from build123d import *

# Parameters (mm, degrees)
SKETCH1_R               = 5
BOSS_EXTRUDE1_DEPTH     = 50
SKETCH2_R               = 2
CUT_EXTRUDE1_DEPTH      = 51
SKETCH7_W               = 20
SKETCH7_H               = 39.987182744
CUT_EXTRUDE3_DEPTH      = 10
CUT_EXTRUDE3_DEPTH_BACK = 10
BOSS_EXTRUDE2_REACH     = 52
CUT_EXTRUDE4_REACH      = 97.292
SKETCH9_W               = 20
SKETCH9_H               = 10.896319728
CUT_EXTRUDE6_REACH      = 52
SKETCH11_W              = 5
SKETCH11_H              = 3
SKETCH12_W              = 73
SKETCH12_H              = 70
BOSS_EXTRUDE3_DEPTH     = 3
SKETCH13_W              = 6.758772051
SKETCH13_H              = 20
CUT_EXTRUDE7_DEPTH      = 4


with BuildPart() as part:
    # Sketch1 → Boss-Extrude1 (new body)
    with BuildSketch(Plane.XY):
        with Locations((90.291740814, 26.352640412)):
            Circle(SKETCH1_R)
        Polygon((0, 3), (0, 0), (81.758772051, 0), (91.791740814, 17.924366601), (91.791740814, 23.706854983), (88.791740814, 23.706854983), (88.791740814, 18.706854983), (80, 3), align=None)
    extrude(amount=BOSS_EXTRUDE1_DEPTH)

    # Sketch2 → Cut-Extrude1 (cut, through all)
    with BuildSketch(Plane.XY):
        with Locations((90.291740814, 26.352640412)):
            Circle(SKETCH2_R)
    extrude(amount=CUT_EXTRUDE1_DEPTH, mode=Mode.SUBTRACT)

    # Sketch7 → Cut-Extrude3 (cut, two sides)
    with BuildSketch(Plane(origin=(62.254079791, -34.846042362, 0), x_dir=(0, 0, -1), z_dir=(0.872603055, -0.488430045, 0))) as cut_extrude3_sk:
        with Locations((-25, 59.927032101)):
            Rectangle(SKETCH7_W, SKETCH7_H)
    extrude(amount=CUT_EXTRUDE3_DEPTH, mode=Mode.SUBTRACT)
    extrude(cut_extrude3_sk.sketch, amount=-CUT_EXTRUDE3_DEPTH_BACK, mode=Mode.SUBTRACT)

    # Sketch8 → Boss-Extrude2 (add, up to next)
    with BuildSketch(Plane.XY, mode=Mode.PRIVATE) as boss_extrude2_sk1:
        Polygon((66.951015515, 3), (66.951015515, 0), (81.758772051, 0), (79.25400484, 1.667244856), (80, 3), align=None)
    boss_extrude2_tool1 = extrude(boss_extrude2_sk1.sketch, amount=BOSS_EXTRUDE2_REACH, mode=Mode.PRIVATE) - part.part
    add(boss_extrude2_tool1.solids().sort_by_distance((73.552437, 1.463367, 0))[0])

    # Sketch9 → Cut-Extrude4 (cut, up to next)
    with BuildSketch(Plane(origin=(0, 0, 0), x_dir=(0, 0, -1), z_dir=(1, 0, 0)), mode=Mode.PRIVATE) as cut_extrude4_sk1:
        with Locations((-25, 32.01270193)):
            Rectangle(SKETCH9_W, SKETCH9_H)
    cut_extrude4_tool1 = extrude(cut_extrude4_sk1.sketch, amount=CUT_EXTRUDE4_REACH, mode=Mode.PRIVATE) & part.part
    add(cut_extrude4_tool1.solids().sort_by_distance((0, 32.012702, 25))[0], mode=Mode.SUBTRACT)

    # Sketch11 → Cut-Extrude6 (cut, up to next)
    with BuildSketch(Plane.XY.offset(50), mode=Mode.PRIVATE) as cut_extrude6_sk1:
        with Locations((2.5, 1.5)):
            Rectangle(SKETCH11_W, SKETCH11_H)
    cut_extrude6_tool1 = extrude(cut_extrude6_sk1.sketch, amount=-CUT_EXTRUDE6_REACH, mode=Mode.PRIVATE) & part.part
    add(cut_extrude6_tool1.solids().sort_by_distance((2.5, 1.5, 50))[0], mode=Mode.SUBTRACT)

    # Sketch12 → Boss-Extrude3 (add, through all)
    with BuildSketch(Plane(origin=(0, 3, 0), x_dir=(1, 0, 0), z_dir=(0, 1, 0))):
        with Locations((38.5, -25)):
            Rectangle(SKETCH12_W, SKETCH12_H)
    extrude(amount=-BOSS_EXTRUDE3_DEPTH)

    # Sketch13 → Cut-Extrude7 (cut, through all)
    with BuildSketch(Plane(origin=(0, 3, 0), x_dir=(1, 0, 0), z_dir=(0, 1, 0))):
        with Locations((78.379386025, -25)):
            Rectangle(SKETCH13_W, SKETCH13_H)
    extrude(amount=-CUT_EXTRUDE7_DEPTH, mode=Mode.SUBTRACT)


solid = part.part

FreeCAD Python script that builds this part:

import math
import FreeCAD as App
import Part
import Sketcher
from FreeCAD import Vector


def add_polygon(sketch, points):
    """Adds a closed chain of lines whose ends are joined by coincident constraints."""
    first, n = sketch.GeometryCount, len(points)
    for a, b in zip(points, points[1:] + points[:1]):
        sketch.addGeometry(Part.LineSegment(App.Vector(*a, 0), App.Vector(*b, 0)), False)
    for i in range(n):
        sketch.addConstraint(Sketcher.Constraint("Coincident", first + i, 2, first + (i + 1) % n, 1))

doc = App.newDocument("Part")
body = doc.addObject("PartDesign::Body", "Body")

# Sketch on XY plane
sketch1 = doc.addObject("Sketcher::SketchObject", "Sketch")
body.addObject(sketch1)
sketch1.AttachmentSupport = (doc.XY_Plane, [""])
sketch1.MapMode = "FlatFace"
sketch1.addGeometry([
    Part.ArcOfCircle(Part.Circle(Vector(90.3, 26.4, 0), Vector(0, 0, 1), 5), math.radians(-73), math.radians(253)),  # 0
    Part.LineSegment(Vector(88.8, 21.6, 0), Vector(88.8, 18.7, 0)),  # 1
    Part.LineSegment(Vector(88.8, 18.7, 0), Vector(80, 3, 0)),  # 2
    Part.LineSegment(Vector(80, 3, 0), Vector(0, 3, 0)),  # 3
    Part.LineSegment(Vector(0, 3, 0), Vector(0, 0, 0)),  # 4
    Part.LineSegment(Vector(0, 0, 0), Vector(81.8, 0, 0)),  # 5
    Part.LineSegment(Vector(81.8, 0, 0), Vector(91.8, 17.9, 0)),  # 6
    Part.LineSegment(Vector(91.8, 17.9, 0), Vector(91.8, 21.6, 0)),  # 7
], False)
sketch1.addConstraint([
    Sketcher.Constraint("Coincident", 0, 2, 1, 1),
    Sketcher.Constraint("Coincident", 1, 2, 2, 1),
    Sketcher.Constraint("Coincident", 2, 2, 3, 1),
    Sketcher.Constraint("Coincident", 3, 2, 4, 1),
    Sketcher.Constraint("Coincident", 4, 2, 5, 1),
    Sketcher.Constraint("Coincident", 5, 2, 6, 1),
    Sketcher.Constraint("Coincident", 6, 2, 7, 1),
    Sketcher.Constraint("Coincident", 7, 2, 0, 1),
    Sketcher.Constraint("Vertical", 1),
    Sketcher.Constraint("Horizontal", 3),
    Sketcher.Constraint("Vertical", 4),
    Sketcher.Constraint("Horizontal", 5),
    Sketcher.Constraint("Vertical", 7),
    Sketcher.Constraint("Coincident", 4, 2, -1, 1),
    Sketcher.Constraint("Parallel", 2, 6),
    Sketcher.Constraint("Horizontal", 0, 2, 7, 2),
    Sketcher.Constraint("Radius", 0, 5.0),
    Sketcher.Constraint("DistanceX", 3, 2, 3, 1, 80.0),
    Sketcher.Constraint("DistanceY", 4, 2, 4, 1, 3.0),
    Sketcher.Constraint("Distance", 2, 18.0),
    Sketcher.Constraint("DistanceX", 1, 2, 6, 2, 3.0),
    Sketcher.Constraint("DistanceY", 1, 2, 1, 1, 2.876089),
    Sketcher.Constraint("Distance", 6, 20.54126),
    Sketcher.Constraint("DistanceX", 5, 1, 5, 2, 81.758772),
])
pad1 = doc.addObject("PartDesign::Pad", "Pad")
body.addObject(pad1)
pad1.Profile = sketch1
pad1.Length = 50

# Sketch on XY plane
sketch2 = doc.addObject("Sketcher::SketchObject", "Sketch001")
body.addObject(sketch2)
sketch2.AttachmentSupport = (doc.XY_Plane, [""])
sketch2.MapMode = "FlatFace"
sketch2.addGeometry(Part.Circle(Vector(90.3, 26.4, 0), Vector(0, 0, 1), 2), False)
sketch2.addConstraint([
    Sketcher.Constraint("Diameter", 0, 4.0),
    Sketcher.Constraint("DistanceX", -1, 1, 0, 3, 90.291741),
    Sketcher.Constraint("DistanceY", -1, 1, 0, 3, 26.35264),
])
pocket1 = doc.addObject("PartDesign::Pocket", "Pocket")
body.addObject(pocket1)
pocket1.Profile = sketch2
pocket1.Type = "ThroughAll"
pocket1.Reversed = True

# Sketch on an angled plane
sketch3 = doc.addObject("Sketcher::SketchObject", "Sketch002")
body.addObject(sketch3)
sketch3.Placement = App.Placement(Vector(62.25408, -34.846042, 0), App.Rotation(Vector(0, 0, -1), Vector(0.488430045, 0.872603055, 0), Vector(0.872603055, -0.488430045, 0), "ZXY"))
add_polygon(sketch3, [(-35, 80), (-35, 40), (-15, 40), (-15, 80)])  # lines 0-3
sketch3.addConstraint([
    Sketcher.Constraint("Vertical", 0),
    Sketcher.Constraint("Horizontal", 1),
    Sketcher.Constraint("Vertical", 2),
    Sketcher.Constraint("Horizontal", 3),
    Sketcher.Constraint("DistanceX", 1, 1, 1, 2, 20.0),
    Sketcher.Constraint("DistanceX", 0, 2, -1, 1, 35.0),
    Sketcher.Constraint("DistanceY", 0, 2, 0, 1, 39.987183),
    Sketcher.Constraint("DistanceY", -1, 1, 0, 2, 39.933441),
])
pocket2 = doc.addObject("PartDesign::Pocket", "Pocket001")
body.addObject(pocket2)
pocket2.Profile = sketch3
pocket2.Type = "TwoLengths"
pocket2.Length = 10
pocket2.Length2 = 10
pocket2.Reversed = True

# Sketch on XY plane
sketch4 = doc.addObject("Sketcher::SketchObject", "Sketch003")
body.addObject(sketch4)
sketch4.AttachmentSupport = (doc.XY_Plane, [""])
sketch4.MapMode = "FlatFace"
add_polygon(sketch4, [(67, 3), (67, 0), (81.8, 0), (79.3, 1.7), (80, 3)])  # lines 0-4
sketch4.addConstraint([
    Sketcher.Constraint("Vertical", 0),
    Sketcher.Constraint("Horizontal", 1),
    Sketcher.Constraint("Horizontal", 4),
    Sketcher.Constraint("PointOnObject", 0, 2, -1),
    Sketcher.Constraint("DistanceY", 0, 2, 0, 1, 3.0),
    Sketcher.Constraint("DistanceX", -1, 1, 3, 2, 80.0),
    Sketcher.Constraint("DistanceX", 1, 1, 1, 2, 14.807757),
    Sketcher.Constraint("DistanceX", 4, 2, 4, 1, 13.048984),
    Sketcher.Constraint("DistanceX", 0, 2, 2, 2, 12.302989),
    Sketcher.Constraint("Distance", 2, 3.008914),
])
pad2 = doc.addObject("PartDesign::Pad", "Pad001")
body.addObject(pad2)
pad2.Profile = sketch4
pad2.Type = "UpToFirst"

# Sketch on YZ plane
sketch5 = doc.addObject("Sketcher::SketchObject", "Sketch004")
body.addObject(sketch5)
sketch5.AttachmentSupport = (doc.YZ_Plane, [""])
sketch5.MapMode = "FlatFace"
add_polygon(sketch5, [(37, 35), (27, 35), (27, 15), (37, 15)])  # lines 0-3
sketch5.addConstraint([
    Sketcher.Constraint("Horizontal", 0),
    Sketcher.Constraint("Vertical", 1),
    Sketcher.Constraint("Horizontal", 2),
    Sketcher.Constraint("Vertical", 3),
    Sketcher.Constraint("DistanceY", 1, 2, 1, 1, 20.0),
    Sketcher.Constraint("DistanceY", -1, 1, 0, 2, 35.0),
    Sketcher.Constraint("DistanceX", 0, 2, 0, 1, 10.89632),
    Sketcher.Constraint("DistanceX", -1, 1, 2, 2, 37.460862),
])
pocket3 = doc.addObject("PartDesign::Pocket", "Pocket002")
body.addObject(pocket3)
pocket3.Profile = sketch5
pocket3.Length = 87.28592
pocket3.Reversed = True

# Sketch on XY plane
sketch6 = doc.addObject("Sketcher::SketchObject", "Sketch005")
body.addObject(sketch6)
sketch6.AttachmentSupport = (doc.XY_Plane, [""])
sketch6.MapMode = "FlatFace"
sketch6.AttachmentOffset = App.Placement(Vector(0, 0, 50), App.Rotation())
add_polygon(sketch6, [(0, 3), (0, 0), (5, 0), (5, 3)])  # lines 0-3
sketch6.addConstraint([
    Sketcher.Constraint("Vertical", 0),
    Sketcher.Constraint("Horizontal", 1),
    Sketcher.Constraint("Vertical", 2),
    Sketcher.Constraint("Horizontal", 3),
    Sketcher.Constraint("Coincident", 0, 2, -1, 1),
    Sketcher.Constraint("DistanceX", 1, 1, 1, 2, 5.0),
    Sketcher.Constraint("DistanceY", 0, 2, 0, 1, 3.0),
])
pocket4 = doc.addObject("PartDesign::Pocket", "Pocket003")
body.addObject(pocket4)
pocket4.Profile = sketch6
pocket4.Type = "UpToFirst"

# Sketch on XZ plane
sketch7 = doc.addObject("Sketcher::SketchObject", "Sketch006")
body.addObject(sketch7)
sketch7.AttachmentSupport = (doc.XZ_Plane, [""])
sketch7.MapMode = "FlatFace"
sketch7.AttachmentOffset = App.Placement(Vector(0, 0, -3), App.Rotation())
add_polygon(sketch7, [(2, -10), (2, 60), (75, 60), (75, -10)])  # lines 0-3
sketch7.addConstraint([
    Sketcher.Constraint("Vertical", 0),
    Sketcher.Constraint("Horizontal", 1),
    Sketcher.Constraint("Vertical", 2),
    Sketcher.Constraint("Horizontal", 3),
    Sketcher.Constraint("DistanceX", 1, 1, 1, 2, 73.0),
    Sketcher.Constraint("DistanceY", 0, 1, 0, 2, 70.0),
    Sketcher.Constraint("DistanceX", -1, 1, 0, 2, 2.0),
    Sketcher.Constraint("DistanceY", -1, 1, 0, 2, 60.0),
])
pad3 = doc.addObject("PartDesign::Pad", "Pad002")
body.addObject(pad3)
pad3.Profile = sketch7
pad3.Type = "UpToLast"

# Sketch on XZ plane
sketch8 = doc.addObject("Sketcher::SketchObject", "Sketch007")
body.addObject(sketch8)
sketch8.AttachmentSupport = (doc.XZ_Plane, [""])
sketch8.MapMode = "FlatFace"
sketch8.AttachmentOffset = App.Placement(Vector(0, 0, -3), App.Rotation())
add_polygon(sketch8, [(75, 15), (75, 35), (82, 35), (82, 15)])  # lines 0-3
sketch8.addConstraint([
    Sketcher.Constraint("Vertical", 0),
    Sketcher.Constraint("Horizontal", 1),
    Sketcher.Constraint("Vertical", 2),
    Sketcher.Constraint("Horizontal", 3),
    Sketcher.Constraint("DistanceY", 0, 1, 0, 2, 20.0),
    Sketcher.Constraint("DistanceX", -1, 1, 0, 2, 75.0),
    Sketcher.Constraint("DistanceY", -1, 1, 0, 2, 35.0),
    Sketcher.Constraint("DistanceX", 1, 1, 1, 2, 6.758772),
])
pocket5 = doc.addObject("PartDesign::Pocket", "Pocket004")
body.addObject(pocket5)
pocket5.Profile = sketch8
pocket5.Type = "ThroughAll"
pocket5.Reversed = True

doc.recompute()
